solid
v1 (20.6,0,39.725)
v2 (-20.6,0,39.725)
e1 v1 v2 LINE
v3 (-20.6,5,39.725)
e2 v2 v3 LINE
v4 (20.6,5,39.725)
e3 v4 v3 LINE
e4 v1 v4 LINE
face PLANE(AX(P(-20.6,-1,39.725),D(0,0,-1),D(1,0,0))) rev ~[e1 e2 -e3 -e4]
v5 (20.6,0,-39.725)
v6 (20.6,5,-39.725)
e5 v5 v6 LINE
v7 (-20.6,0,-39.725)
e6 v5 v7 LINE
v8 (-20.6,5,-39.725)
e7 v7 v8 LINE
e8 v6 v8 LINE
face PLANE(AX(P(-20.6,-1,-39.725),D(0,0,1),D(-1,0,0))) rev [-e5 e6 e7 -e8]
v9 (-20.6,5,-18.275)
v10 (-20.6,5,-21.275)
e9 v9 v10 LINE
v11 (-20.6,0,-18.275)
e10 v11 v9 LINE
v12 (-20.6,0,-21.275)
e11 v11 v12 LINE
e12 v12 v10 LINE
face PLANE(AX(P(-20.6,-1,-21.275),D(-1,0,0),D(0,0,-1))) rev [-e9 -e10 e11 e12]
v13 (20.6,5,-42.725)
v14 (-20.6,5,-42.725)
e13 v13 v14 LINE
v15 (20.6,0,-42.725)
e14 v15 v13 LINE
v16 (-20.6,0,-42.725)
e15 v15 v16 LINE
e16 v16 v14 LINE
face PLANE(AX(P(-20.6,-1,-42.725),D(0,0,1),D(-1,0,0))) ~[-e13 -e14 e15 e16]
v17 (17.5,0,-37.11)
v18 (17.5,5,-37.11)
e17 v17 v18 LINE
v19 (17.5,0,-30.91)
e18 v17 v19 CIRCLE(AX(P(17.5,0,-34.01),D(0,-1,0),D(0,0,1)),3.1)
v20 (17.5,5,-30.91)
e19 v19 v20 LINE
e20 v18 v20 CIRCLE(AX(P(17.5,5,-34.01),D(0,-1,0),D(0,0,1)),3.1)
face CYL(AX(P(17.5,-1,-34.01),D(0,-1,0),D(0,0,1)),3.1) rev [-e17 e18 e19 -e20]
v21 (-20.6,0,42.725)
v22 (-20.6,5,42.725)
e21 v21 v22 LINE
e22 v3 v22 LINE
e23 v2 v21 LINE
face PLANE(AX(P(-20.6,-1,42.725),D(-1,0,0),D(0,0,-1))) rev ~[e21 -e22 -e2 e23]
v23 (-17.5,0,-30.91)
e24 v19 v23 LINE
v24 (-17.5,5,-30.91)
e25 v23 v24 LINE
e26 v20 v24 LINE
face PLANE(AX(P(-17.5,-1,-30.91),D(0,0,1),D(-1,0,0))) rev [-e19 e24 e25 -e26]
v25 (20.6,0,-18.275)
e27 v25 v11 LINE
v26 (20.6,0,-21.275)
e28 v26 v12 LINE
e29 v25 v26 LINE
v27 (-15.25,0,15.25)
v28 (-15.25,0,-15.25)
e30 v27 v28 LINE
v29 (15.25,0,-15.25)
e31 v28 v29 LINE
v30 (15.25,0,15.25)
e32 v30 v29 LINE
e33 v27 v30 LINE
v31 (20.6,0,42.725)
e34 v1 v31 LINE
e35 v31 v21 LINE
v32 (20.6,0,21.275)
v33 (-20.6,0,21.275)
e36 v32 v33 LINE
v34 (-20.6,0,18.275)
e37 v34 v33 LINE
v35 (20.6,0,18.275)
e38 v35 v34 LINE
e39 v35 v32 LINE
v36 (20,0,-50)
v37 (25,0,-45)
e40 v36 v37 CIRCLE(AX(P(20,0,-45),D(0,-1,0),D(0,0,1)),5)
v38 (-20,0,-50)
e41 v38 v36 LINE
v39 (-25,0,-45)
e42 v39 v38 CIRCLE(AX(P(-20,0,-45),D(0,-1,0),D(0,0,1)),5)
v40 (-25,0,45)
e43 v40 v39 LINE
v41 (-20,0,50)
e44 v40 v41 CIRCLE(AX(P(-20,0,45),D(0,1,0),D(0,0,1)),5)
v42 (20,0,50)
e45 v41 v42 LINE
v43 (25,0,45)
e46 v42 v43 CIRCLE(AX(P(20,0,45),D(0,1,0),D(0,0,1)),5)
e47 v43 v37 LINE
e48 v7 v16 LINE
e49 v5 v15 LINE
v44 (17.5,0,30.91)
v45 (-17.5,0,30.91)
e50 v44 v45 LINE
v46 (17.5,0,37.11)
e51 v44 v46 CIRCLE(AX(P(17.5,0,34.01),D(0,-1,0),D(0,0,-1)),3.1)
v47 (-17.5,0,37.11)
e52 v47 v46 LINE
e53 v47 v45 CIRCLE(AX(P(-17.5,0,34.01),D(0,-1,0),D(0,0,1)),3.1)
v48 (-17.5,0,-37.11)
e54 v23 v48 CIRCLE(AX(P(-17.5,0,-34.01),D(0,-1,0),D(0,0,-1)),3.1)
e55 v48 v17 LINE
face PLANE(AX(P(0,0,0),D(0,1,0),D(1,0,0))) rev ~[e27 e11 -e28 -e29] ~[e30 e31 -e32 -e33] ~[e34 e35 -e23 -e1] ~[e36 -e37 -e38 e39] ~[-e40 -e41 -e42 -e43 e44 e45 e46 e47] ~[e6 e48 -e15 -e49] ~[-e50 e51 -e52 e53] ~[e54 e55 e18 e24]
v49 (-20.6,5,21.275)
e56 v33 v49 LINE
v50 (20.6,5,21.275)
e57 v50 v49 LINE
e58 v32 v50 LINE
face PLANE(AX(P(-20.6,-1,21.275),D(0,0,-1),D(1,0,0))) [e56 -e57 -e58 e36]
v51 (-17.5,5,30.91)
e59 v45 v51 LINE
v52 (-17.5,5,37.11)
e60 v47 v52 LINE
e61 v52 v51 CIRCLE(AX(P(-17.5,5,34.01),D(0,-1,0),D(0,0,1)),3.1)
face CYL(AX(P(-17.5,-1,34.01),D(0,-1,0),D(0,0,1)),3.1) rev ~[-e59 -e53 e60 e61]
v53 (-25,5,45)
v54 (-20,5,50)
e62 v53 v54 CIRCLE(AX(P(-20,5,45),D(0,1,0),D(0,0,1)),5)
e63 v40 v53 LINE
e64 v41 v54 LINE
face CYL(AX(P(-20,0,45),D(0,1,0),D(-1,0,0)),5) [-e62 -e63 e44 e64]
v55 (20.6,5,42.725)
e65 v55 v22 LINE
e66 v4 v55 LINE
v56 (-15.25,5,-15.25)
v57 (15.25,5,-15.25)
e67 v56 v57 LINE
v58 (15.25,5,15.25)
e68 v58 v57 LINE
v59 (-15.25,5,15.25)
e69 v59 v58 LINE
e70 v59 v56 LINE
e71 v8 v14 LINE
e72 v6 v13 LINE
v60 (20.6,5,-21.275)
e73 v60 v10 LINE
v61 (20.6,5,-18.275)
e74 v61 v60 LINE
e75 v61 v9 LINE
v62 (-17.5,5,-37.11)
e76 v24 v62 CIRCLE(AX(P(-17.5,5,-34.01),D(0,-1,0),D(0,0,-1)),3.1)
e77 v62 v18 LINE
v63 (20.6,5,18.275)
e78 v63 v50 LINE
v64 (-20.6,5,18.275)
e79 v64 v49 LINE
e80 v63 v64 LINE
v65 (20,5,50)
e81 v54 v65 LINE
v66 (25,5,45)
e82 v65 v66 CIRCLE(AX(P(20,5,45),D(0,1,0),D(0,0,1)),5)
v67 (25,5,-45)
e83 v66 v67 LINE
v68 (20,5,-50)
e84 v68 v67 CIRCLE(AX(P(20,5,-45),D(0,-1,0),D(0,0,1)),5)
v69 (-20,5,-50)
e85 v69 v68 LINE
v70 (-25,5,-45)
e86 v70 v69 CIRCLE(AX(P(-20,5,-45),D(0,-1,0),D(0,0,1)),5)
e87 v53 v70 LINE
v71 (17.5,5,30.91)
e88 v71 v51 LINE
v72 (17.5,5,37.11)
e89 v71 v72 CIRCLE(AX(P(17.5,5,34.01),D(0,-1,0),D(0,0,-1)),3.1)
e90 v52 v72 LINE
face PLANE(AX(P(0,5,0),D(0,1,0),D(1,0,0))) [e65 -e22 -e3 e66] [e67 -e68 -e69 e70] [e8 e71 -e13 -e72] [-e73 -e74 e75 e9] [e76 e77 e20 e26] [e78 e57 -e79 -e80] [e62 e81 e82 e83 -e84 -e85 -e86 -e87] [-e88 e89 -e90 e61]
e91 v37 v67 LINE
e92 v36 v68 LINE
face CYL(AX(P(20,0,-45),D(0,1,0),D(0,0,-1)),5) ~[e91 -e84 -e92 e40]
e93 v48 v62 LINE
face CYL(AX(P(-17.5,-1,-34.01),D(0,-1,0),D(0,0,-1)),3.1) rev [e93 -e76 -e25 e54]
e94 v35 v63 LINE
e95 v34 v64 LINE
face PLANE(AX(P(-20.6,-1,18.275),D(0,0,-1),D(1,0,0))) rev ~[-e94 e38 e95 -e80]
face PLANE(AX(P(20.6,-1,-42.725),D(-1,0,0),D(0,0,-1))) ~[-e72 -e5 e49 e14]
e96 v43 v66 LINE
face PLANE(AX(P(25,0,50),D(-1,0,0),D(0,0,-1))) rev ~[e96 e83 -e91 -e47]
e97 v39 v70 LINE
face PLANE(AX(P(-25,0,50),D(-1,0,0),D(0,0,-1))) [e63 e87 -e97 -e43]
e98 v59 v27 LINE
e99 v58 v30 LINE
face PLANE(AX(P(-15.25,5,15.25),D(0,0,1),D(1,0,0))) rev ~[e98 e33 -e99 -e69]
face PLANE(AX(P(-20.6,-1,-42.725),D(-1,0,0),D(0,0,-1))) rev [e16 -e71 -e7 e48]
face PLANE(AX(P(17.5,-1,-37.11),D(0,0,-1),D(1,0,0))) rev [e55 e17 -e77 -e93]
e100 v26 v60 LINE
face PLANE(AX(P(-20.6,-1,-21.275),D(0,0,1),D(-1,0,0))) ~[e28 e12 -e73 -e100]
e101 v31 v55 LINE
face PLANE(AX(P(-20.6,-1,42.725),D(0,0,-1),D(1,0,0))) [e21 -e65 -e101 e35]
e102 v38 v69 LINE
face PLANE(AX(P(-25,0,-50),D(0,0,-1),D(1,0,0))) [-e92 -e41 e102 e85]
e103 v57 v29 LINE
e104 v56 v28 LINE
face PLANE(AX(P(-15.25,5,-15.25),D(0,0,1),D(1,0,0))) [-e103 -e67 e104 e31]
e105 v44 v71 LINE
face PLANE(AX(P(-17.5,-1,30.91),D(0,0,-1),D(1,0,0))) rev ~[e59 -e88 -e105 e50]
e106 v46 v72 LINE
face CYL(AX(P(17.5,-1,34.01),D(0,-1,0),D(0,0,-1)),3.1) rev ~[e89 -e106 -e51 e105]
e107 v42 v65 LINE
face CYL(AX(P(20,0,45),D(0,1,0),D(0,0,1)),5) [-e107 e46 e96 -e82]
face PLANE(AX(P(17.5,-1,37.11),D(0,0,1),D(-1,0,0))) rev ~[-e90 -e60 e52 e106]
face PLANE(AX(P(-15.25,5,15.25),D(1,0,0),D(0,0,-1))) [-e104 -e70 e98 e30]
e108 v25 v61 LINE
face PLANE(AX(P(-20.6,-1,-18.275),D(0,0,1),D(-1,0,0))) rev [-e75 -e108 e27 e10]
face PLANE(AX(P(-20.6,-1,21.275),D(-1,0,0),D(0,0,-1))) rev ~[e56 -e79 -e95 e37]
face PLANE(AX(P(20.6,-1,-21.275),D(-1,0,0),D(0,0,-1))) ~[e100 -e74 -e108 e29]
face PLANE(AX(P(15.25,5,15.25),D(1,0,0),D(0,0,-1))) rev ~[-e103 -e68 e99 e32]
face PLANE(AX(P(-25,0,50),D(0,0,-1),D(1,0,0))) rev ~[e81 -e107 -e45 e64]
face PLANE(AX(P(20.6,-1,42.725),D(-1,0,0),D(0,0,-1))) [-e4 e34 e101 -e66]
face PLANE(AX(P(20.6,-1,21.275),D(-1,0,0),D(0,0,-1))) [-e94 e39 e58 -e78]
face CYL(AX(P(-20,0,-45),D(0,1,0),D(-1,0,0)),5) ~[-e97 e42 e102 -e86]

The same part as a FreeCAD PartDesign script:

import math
import FreeCAD as App
import Part
import Sketcher
Q = App.Units.Quantity


def edges_at(feature, points):
    """Names of the edges that pass closest to the given points."""
    edges = feature.Shape.Edges
    near = lambda p: min(range(len(edges)), key=lambda i: edges[i].distToShape(Part.Vertex(*p))[0])
    return sorted({f"Edge{near(p) + 1}" for p in points})

doc = App.newDocument("Part")
params = doc.addObject("Spreadsheet::Sheet", "Params")
for row, (alias, value) in enumerate([
    ("sketch1_width", "50 mm"),
    ("sketch1_height", "100 mm"),
    ("pad1_length", "5 mm"),
    ("sketch2_radius", "3.1 mm"),
    ("sketch2_width", "35 mm"),
    ("pocket1_length", "7 mm"),
    ("fillet_radius", "5 mm"),
    ("sketch3_width", "30.5 mm"),
    ("sketch4_height", "3 mm"),
    ("sketch4_width", "41.2 mm"),
    ("pocket3_length", "7 mm"),
], start=1):
    params.set(f"A{row}", alias)
    params.set(f"B{row}", "=" + value)
    params.setAlias(f"B{row}", alias)

body = doc.addObject("PartDesign::Body", "Body")

# Sketch on XZ plane
sketch1 = body.newObject("Sketcher::SketchObject", "Sketch")
sketch1.AttachmentSupport = (doc.getObject("XZ_Plane"), [""])
sketch1.MapMode = "FlatFace"
sketch1.addGeometry([
    Part.LineSegment(App.Vector(-25, -50, 0), App.Vector(-25, 50, 0)),
    Part.LineSegment(App.Vector(-25, 50, 0), App.Vector(25, 50, 0)),
    Part.LineSegment(App.Vector(25, 50, 0), App.Vector(25, -50, 0)),
    Part.LineSegment(App.Vector(25, -50, 0), App.Vector(-25, -50, 0)),
], False)
sketch1.addConstraint([
    Sketcher.Constraint("Coincident", 0, 2, 1, 1),
    Sketcher.Constraint("Coincident", 1, 2, 2, 1),
    Sketcher.Constraint("Coincident", 2, 2, 3, 1),
    Sketcher.Constraint("Coincident", 3, 2, 0, 1),
    Sketcher.Constraint("Vertical", 0),
    Sketcher.Constraint("Horizontal", 1),
    Sketcher.Constraint("Vertical", 2),
    Sketcher.Constraint("Horizontal", 3),
    Sketcher.Constraint("Symmetric", 0, 2, 2, 2, -1, 1),
    Sketcher.Constraint("DistanceX", 1, 1, 1, 2, Q("50 mm")),
    Sketcher.Constraint("DistanceY", 0, 1, 0, 2, Q("100 mm")),
])
sketch1.setExpression("Constraints[9]", "Params.sketch1_width")
sketch1.setExpression("Constraints[10]", "Params.sketch1_height")
pad1 = body.newObject("PartDesign::Pad", "Pad")
pad1.Profile = sketch1
pad1.setExpression("Length", "Params.pad1_length")
pad1.Reversed = True

# Sketch on XZ plane
sketch2 = body.newObject("Sketcher::SketchObject", "Sketch001")
sketch2.AttachmentSupport = (doc.getObject("XZ_Plane"), [""])
sketch2.MapMode = "FlatFace"
sketch2.AttachmentOffset = App.Placement(App.Vector(0, 0, 1), App.Rotation())
sketch2.addGeometry([
    Part.LineSegment(App.Vector(17.5, 30.91, 0), App.Vector(-17.5, 30.91, 0)),
    Part.ArcOfCircle(Part.Circle(App.Vector(-17.5, 34.01, 0), App.Vector(0, 0, 1), 3.1), math.radians(90), math.radians(270)),
    Part.LineSegment(App.Vector(-17.5, 37.11, 0), App.Vector(17.5, 37.11, 0)),
    Part.ArcOfCircle(Part.Circle(App.Vector(17.5, 34.01, 0), App.Vector(0, 0, 1), 3.1), math.radians(-90), math.radians(90)),
], False)
sketch2.addConstraint([
    Sketcher.Constraint("Tangent", 0, 2, 1, 2),
    Sketcher.Constraint("Tangent", 1, 1, 2, 1),
    Sketcher.Constraint("Tangent", 2, 2, 3, 2),
    Sketcher.Constraint("Tangent", 3, 1, 0, 1),
    Sketcher.Constraint("Horizontal", 0),
    Sketcher.Constraint("Horizontal", 2),
    Sketcher.Constraint("Radius", 1, Q("3.1 mm")),
    Sketcher.Constraint("DistanceX", 0, 2, 0, 1, Q("35 mm")),
    Sketcher.Constraint("DistanceX", 1, 3, -1, 1, Q("17.5 mm")),
    Sketcher.Constraint("DistanceY", -1, 1, 1, 3, Q("34.01 mm")),
])
sketch2.setExpression("Constraints[6]", "Params.sketch2_radius")
sketch2.setExpression("Constraints[7]", "Params.sketch2_width")
pocket1 = body.newObject("PartDesign::Pocket", "Pocket")
pocket1.Profile = sketch2
pocket1.setExpression("Length", "Params.pocket1_length")
doc.recompute()

mirrored = body.newObject("PartDesign::Mirrored", "Mirrored")
mirrored.Originals = [pocket1]
mirrored.MirrorPlane = (doc.getObject("XY_Plane"), [""])
body.Tip = mirrored
doc.recompute()

fillet = body.newObject("PartDesign::Fillet", "Fillet")
fillet.Base = (mirrored, edges_at(mirrored, [
    (25, 2.5, 50),
    (-25, 2.5, 50),
    (-25, 2.5, -50),
    (25, 2.5, -50),
]))
fillet.setExpression("Radius", "Params.fillet_radius")

# Sketch on XZ plane
sketch3 = body.newObject("Sketcher::SketchObject", "Sketch002")
sketch3.AttachmentSupport = (doc.getObject("XZ_Plane"), [""])
sketch3.MapMode = "FlatFace"
sketch3.AttachmentOffset = App.Placement(App.Vector(0, 0, -5), App.Rotation())
sketch3.addGeometry([
    Part.LineSegment(App.Vector(-15.25, -15.25, 0), App.Vector(-15.25, 15.25, 0)),
    Part.LineSegment(App.Vector(-15.25, 15.25, 0), App.Vector(15.25, 15.25, 0)),
    Part.LineSegment(App.Vector(15.25, 15.25, 0), App.Vector(15.25, -15.25, 0)),
    Part.LineSegment(App.Vector(15.25, -15.25, 0), App.Vector(-15.25, -15.25, 0)),
], False)
sketch3.addConstraint([
    Sketcher.Constraint("Coincident", 0, 2, 1, 1),
    Sketcher.Constraint("Coincident", 1, 2, 2, 1),
    Sketcher.Constraint("Coincident", 2, 2, 3, 1),
    Sketcher.Constraint("Coincident", 3, 2, 0, 1),
    Sketcher.Constraint("Vertical", 0),
    Sketcher.Constraint("Horizontal", 1),
    Sketcher.Constraint("Vertical", 2),
    Sketcher.Constraint("Horizontal", 3),
    Sketcher.Constraint("Symmetric", 0, 2, 2, 2, -1, 1),
    Sketcher.Constraint("Equal", 3, 0),
    Sketcher.Constraint("DistanceX", 1, 1, 1, 2, Q("30.5 mm")),
])
sketch3.setExpression("Constraints[10]", "Params.sketch3_width")
pocket2 = body.newObject("PartDesign::Pocket", "Pocket001")
pocket2.Profile = sketch3
pocket2.Type = "ThroughAll"
pocket2.Reversed = True

# Sketch on XZ plane
sketch4 = body.newObject("Sketcher::SketchObject", "Sketch003")
sketch4.AttachmentSupport = (doc.getObject("XZ_Plane"), [""])
sketch4.MapMode = "FlatFace"
sketch4.AttachmentOffset = App.Placement(App.Vector(0, 0, 1), App.Rotation())
sketch4.addGeometry([
    Part.LineSegment(App.Vector(-20.6, 18.275, 0), App.Vector(-20.6, 21.275, 0)),  # 0
    Part.LineSegment(App.Vector(-20.6, 21.275, 0), App.Vector(20.6, 21.275, 0)),  # 1
    Part.LineSegment(App.Vector(20.6, 21.275, 0), App.Vector(20.6, 18.275, 0)),  # 2
    Part.LineSegment(App.Vector(20.6, 18.275, 0), App.Vector(-20.6, 18.275, 0)),  # 3
    Part.LineSegment(App.Vector(-20.6, 39.725, 0), App.Vector(-20.6, 42.725, 0)),  # 4
    Part.LineSegment(App.Vector(-20.6, 42.725, 0), App.Vector(20.6, 42.725, 0)),  # 5
    Part.LineSegment(App.Vector(20.6, 42.725, 0), App.Vector(20.6, 39.725, 0)),  # 6
    Part.LineSegment(App.Vector(20.6, 39.725, 0), App.Vector(-20.6, 39.725, 0)),  # 7
], False)
sketch4.addConstraint([
    Sketcher.Constraint("Coincident", 0, 2, 1, 1),
    Sketcher.Constraint("Coincident", 1, 2, 2, 1),
    Sketcher.Constraint("Coincident", 2, 2, 3, 1),
    Sketcher.Constraint("Coincident", 3, 2, 0, 1),
    Sketcher.Constraint("Coincident", 4, 2, 5, 1),
    Sketcher.Constraint("Coincident", 5, 2, 6, 1),
    Sketcher.Constraint("Coincident", 6, 2, 7, 1),
    Sketcher.Constraint("Coincident", 7, 2, 4, 1),
    Sketcher.Constraint("Vertical", 0),
    Sketcher.Constraint("Horizontal", 1),
    Sketcher.Constraint("Vertical", 2),
    Sketcher.Constraint("Horizontal", 3),
    Sketcher.Constraint("Vertical", 4),
    Sketcher.Constraint("Horizontal", 5),
    Sketcher.Constraint("Vertical", 6),
    Sketcher.Constraint("Horizontal", 7),
    Sketcher.Constraint("Vertical", 3, 2, 4, 2),
    Sketcher.Constraint("Vertical", 2, 2, 5, 2),
    Sketcher.Constraint("Equal", 2, 4),
    Sketcher.Constraint("DistanceY", 0, 1, 0, 2, Q("3 mm")),
    Sketcher.Constraint("DistanceX", 1, 1, 1, 2, Q("41.2 mm")),
    Sketcher.Constraint("DistanceX", 0, 2, -1, 1, Q("20.6 mm")),
    Sketcher.Constraint("DistanceY", 0, 2, 4, 2, Q("21.45 mm")),
    Sketcher.Constraint("DistanceY", -1, 1, 0, 2, Q("21.275 mm")),
])
sketch4.setExpression("Constraints[19]", "Params.sketch4_height")
sketch4.setExpression("Constraints[20]", "Params.sketch4_width")
pocket3 = body.newObject("PartDesign::Pocket", "Pocket002")
pocket3.Profile = sketch4
pocket3.setExpression("Length", "Params.pocket3_length")
doc.recompute()

mirrored2 = body.newObject("PartDesign::Mirrored", "Mirrored001")
mirrored2.Originals = [pocket3]
mirrored2.MirrorPlane = (doc.getObject("XY_Plane"), [""])
body.Tip = mirrored2

doc.recompute()
